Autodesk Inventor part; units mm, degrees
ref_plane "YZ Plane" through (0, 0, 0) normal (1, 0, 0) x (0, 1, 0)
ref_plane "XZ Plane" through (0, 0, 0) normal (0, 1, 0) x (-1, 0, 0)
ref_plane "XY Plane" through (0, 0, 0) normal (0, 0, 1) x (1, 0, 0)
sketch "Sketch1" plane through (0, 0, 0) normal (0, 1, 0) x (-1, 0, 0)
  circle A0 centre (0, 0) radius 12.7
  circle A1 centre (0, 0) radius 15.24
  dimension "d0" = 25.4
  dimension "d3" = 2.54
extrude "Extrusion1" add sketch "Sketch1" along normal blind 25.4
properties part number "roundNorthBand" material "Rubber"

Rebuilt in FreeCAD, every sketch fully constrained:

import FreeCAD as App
import Part
import Sketcher

V = App.Vector
Q = App.Units.Quantity

doc = App.newDocument("Part")
body = doc.addObject("PartDesign::Body", "Body")

sketch1 = body.newObject("Sketcher::SketchObject", "Sketch")
sketch1.AttachmentSupport = (doc.getObject("XZ_Plane"), [""])
sketch1.MapMode = "FlatFace"
sketch1.addGeometry([
    Part.Circle(V(0, 0, 0), V(0, 0, 1), 15),
    Part.Circle(V(0, 0, 0), V(0, 0, 1), 13),
], False)
sketch1.addConstraint([
    Sketcher.Constraint("Coincident", 0, 3, -1, 1),
    Sketcher.Constraint("Coincident", 1, 3, -1, 1),
    Sketcher.Constraint("Diameter", 1, Q("1 in")),
    Sketcher.Constraint("Diameter", 0, Q("1.2 in")),
])
pad1 = body.newObject("PartDesign::Pad", "Pad")
pad1.Profile = sketch1
pad1.Length = Q("1 in")
pad1.Reversed = True

doc.recompute()
